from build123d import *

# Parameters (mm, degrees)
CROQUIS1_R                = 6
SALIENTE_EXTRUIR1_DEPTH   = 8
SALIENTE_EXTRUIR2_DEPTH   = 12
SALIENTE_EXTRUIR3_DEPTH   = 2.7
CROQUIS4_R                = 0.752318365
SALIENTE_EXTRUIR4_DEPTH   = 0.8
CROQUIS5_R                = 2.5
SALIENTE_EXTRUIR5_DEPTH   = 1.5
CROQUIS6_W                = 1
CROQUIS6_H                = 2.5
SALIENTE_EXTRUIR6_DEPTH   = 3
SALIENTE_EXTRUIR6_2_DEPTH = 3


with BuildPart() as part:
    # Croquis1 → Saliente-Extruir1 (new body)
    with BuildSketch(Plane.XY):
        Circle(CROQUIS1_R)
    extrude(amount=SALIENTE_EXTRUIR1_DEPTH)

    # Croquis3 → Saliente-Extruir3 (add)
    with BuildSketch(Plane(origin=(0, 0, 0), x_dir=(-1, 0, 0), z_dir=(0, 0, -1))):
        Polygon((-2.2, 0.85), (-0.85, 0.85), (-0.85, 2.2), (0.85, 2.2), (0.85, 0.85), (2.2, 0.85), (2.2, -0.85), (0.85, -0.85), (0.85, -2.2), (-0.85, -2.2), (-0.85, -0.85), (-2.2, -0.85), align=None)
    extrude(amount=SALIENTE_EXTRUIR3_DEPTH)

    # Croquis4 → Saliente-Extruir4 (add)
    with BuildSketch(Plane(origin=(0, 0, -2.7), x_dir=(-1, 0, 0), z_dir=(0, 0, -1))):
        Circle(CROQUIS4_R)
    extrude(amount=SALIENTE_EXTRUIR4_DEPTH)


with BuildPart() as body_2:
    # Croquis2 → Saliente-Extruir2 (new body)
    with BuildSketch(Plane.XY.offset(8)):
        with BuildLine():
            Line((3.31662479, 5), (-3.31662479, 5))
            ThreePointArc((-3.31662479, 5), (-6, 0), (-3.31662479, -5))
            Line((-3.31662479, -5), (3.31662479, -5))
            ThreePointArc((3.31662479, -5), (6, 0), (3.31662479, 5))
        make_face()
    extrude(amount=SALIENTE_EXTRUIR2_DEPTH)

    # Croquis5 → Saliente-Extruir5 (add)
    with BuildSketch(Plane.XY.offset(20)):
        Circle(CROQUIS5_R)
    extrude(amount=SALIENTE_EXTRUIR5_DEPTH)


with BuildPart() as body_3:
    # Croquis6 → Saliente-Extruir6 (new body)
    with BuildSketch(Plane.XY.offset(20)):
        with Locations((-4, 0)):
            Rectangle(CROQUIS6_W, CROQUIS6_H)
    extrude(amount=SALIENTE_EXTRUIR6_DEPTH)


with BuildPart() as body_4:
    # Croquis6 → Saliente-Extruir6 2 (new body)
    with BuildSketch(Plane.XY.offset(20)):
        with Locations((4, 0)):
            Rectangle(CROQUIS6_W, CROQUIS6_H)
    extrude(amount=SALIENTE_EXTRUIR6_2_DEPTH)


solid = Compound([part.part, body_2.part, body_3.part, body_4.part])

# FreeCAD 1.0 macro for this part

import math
import FreeCAD as App
import Part
import Sketcher
Q = App.Units.Quantity

doc = App.newDocument("Part")
body = doc.addObject("PartDesign::Body", "Body")

# Sketch on XY plane
sketch1 = doc.addObject("Sketcher::SketchObject", "Sketch")
body.addObject(sketch1)
sketch1.AttachmentSupport = (doc.XY_Plane, [""])
sketch1.MapMode = "FlatFace"
sketch1.addGeometry(Part.Circle(App.Vector(0, 0, 0), App.Vector(0, 0, 1), 6), False)
sketch1.addConstraint([
    Sketcher.Constraint("Coincident", 0, 3, -1, 1),
    Sketcher.Constraint("Diameter", 0, Q("12 mm")),
])
pad1 = doc.addObject("PartDesign::Pad", "Pad")
body.addObject(pad1)
pad1.Profile = sketch1
pad1.Length = 8

# Sketch on XY plane
sketch2 = doc.addObject("Sketcher::SketchObject", "Sketch001")
body.addObject(sketch2)
sketch2.AttachmentSupport = (doc.XY_Plane, [""])
sketch2.MapMode = "FlatFace"
sketch2.addGeometry([
    Part.LineSegment(App.Vector(0.8, 0.8, 0), App.Vector(2.2, 0.8, 0)),  # 0
    Part.LineSegment(App.Vector(2.2, 0.8, 0), App.Vector(2.2, -0.8, 0)),  # 1
    Part.LineSegment(App.Vector(2.2, -0.8, 0), App.Vector(0.8, -0.8, 0)),  # 2
    Part.LineSegment(App.Vector(0.8, -0.8, 0), App.Vector(0.8, -2.2, 0)),  # 3
    Part.LineSegment(App.Vector(0.8, -2.2, 0), App.Vector(-0.8, -2.2, 0)),  # 4
    Part.LineSegment(App.Vector(-0.8, -2.2, 0), App.Vector(-0.8, -0.8, 0)),  # 5
    Part.LineSegment(App.Vector(-0.8, -0.8, 0), App.Vector(-2.2, -0.8, 0)),  # 6
    Part.LineSegment(App.Vector(-2.2, -0.8, 0), App.Vector(-2.2, 0.8, 0)),  # 7
    Part.LineSegment(App.Vector(-2.2, 0.8, 0), App.Vector(-0.8, 0.8, 0)),  # 8
    Part.LineSegment(App.Vector(-0.8, 0.8, 0), App.Vector(-0.8, 2.2, 0)),  # 9
    Part.LineSegment(App.Vector(-0.8, 2.2, 0), App.Vector(0.8, 2.2, 0)),  # 10
    Part.LineSegment(App.Vector(0.8, 2.2, 0), App.Vector(0.8, 0.8, 0)),  # 11
], False)
sketch2.addConstraint([
    Sketcher.Constraint("Coincident", 0, 2, 1, 1),
    Sketcher.Constraint("Coincident", 1, 2, 2, 1),
    Sketcher.Constraint("Coincident", 2, 2, 3, 1),
    Sketcher.Constraint("Coincident", 3, 2, 4, 1),
    Sketcher.Constraint("Coincident", 4, 2, 5, 1),
    Sketcher.Constraint("Coincident", 5, 2, 6, 1),
    Sketcher.Constraint("Coincident", 6, 2, 7, 1),
    Sketcher.Constraint("Coincident", 7, 2, 8, 1),
    Sketcher.Constraint("Coincident", 8, 2, 9, 1),
    Sketcher.Constraint("Coincident", 9, 2, 10, 1),
    Sketcher.Constraint("Coincident", 10, 2, 11, 1),
    Sketcher.Constraint("Coincident", 11, 2, 0, 1),
    Sketcher.Constraint("Horizontal", 0),
    Sketcher.Constraint("Vertical", 1),
    Sketcher.Constraint("Horizontal", 2),
    Sketcher.Constraint("Vertical", 3),
    Sketcher.Constraint("Horizontal", 4),
    Sketcher.Constraint("Vertical", 5),
    Sketcher.Constraint("Horizontal", 6),
    Sketcher.Constraint("Vertical", 7),
    Sketcher.Constraint("Horizontal", 8),
    Sketcher.Constraint("Vertical", 9),
    Sketcher.Constraint("Horizontal", 10),
    Sketcher.Constraint("Vertical", 11),
    Sketcher.Constraint("Symmetric", 0, 2, 6, 2, -1, 1),
    Sketcher.Constraint("Symmetric", 2, 2, 8, 2, -1, 1),
    Sketcher.Constraint("Symmetric", 4, 2, 10, 2, -1, 1),
    Sketcher.Constraint("Symmetric", 2, 2, 5, 2, -2),
    Sketcher.Constraint("Equal", 10, 1),
    Sketcher.Constraint("Equal", 8, 3),
    Sketcher.Constraint("DistanceX", 4, 2, 4, 1, Q("1.7 mm")),
    Sketcher.Constraint("DistanceX", 0, 1, 0, 2, Q("1.35 mm")),
])
pad2 = doc.addObject("PartDesign::Pad", "Pad001")
body.addObject(pad2)
pad2.Profile = sketch2
pad2.Length = 2.7
pad2.Reversed = True

# Sketch on XY plane
sketch3 = doc.addObject("Sketcher::SketchObject", "Sketch002")
body.addObject(sketch3)
sketch3.AttachmentSupport = (doc.XY_Plane, [""])
sketch3.MapMode = "FlatFace"
sketch3.AttachmentOffset = App.Placement(App.Vector(0, 0, -2.7), App.Rotation())
sketch3.addGeometry(Part.Circle(App.Vector(0, 0, 0), App.Vector(0, 0, 1), 0.8), False)
sketch3.addConstraint([
    Sketcher.Constraint("Coincident", 0, 3, -1, 1),
    Sketcher.Constraint("Diameter", 0, Q("1.504637 mm")),
])
pad3 = doc.addObject("PartDesign::Pad", "Pad002")
body.addObject(pad3)
pad3.Profile = sketch3
pad3.Length = 0.8
pad3.Reversed = True
body2 = doc.addObject("PartDesign::Body", "Body001")

# Sketch on XY plane
sketch4 = doc.addObject("Sketcher::SketchObject", "Sketch003")
body2.addObject(sketch4)
sketch4.AttachmentSupport = (doc.getObject("XY_Plane001"), [""])
sketch4.MapMode = "FlatFace"
sketch4.AttachmentOffset = App.Placement(App.Vector(0, 0, 8), App.Rotation())
sketch4.addGeometry([
    Part.LineSegment(App.Vector(3, 5, 0), App.Vector(-3, 5, 0)),
    Part.ArcOfCircle(Part.Circle(App.Vector(0, 0, 0), App.Vector(0, 0, 1), 6), math.radians(124), math.radians(236)),
    Part.LineSegment(App.Vector(-3, -5, 0), App.Vector(3, -5, 0)),
    Part.ArcOfCircle(Part.Circle(App.Vector(0, 0, 0), App.Vector(0, 0, 1), 6), math.radians(-56), math.radians(56)),
], False)
sketch4.addConstraint([
    Sketcher.Constraint("Coincident", 0, 2, 1, 1),
    Sketcher.Constraint("Coincident", 1, 2, 2, 1),
    Sketcher.Constraint("Coincident", 2, 2, 3, 1),
    Sketcher.Constraint("Coincident", 3, 2, 0, 1),
    Sketcher.Constraint("Horizontal", 0),
    Sketcher.Constraint("Horizontal", 2),
    Sketcher.Constraint("Coincident", 1, 3, -1, 1),
    Sketcher.Constraint("Coincident", 3, 3, -1, 1),
    Sketcher.Constraint("Equal", 1, 3),
    Sketcher.Constraint("Vertical", 0, 2, 1, 2),
    Sketcher.Constraint("Radius", 1, Q("6 mm")),
    Sketcher.Constraint("DistanceY", -1, 1, 0, 2, Q("5 mm")),
])
pad4 = doc.addObject("PartDesign::Pad", "Pad003")
body2.addObject(pad4)
pad4.Profile = sketch4
pad4.Length = 12

# Sketch on XY plane
sketch5 = doc.addObject("Sketcher::SketchObject", "Sketch004")
body2.addObject(sketch5)
sketch5.AttachmentSupport = (doc.getObject("XY_Plane001"), [""])
sketch5.MapMode = "FlatFace"
sketch5.AttachmentOffset = App.Placement(App.Vector(0, 0, 20), App.Rotation())
sketch5.addGeometry(Part.Circle(App.Vector(0, 0, 0), App.Vector(0, 0, 1), 2.5), False)
sketch5.addConstraint([
    Sketcher.Constraint("Coincident", 0, 3, -1, 1),
    Sketcher.Constraint("Diameter", 0, Q("5 mm")),
])
pad5 = doc.addObject("PartDesign::Pad", "Pad004")
body2.addObject(pad5)
pad5.Profile = sketch5
pad5.Length = 1.5
body3 = doc.addObject("PartDesign::Body", "Body002")

# Sketch on XY plane
sketch6 = doc.addObject("Sketcher::SketchObject", "Sketch005")
body3.addObject(sketch6)
sketch6.AttachmentSupport = (doc.getObject("XY_Plane002"), [""])
sketch6.MapMode = "FlatFace"
sketch6.AttachmentOffset = App.Placement(App.Vector(0, 0, 20), App.Rotation())
sketch6.addGeometry([
    Part.LineSegment(App.Vector(-4.5, 1.2, 0), App.Vector(-4.5, -1.2, 0)),
    Part.LineSegment(App.Vector(-4.5, -1.2, 0), App.Vector(-3.5, -1.2, 0)),
    Part.LineSegment(App.Vector(-3.5, -1.2, 0), App.Vector(-3.5, 1.2, 0)),
    Part.LineSegment(App.Vector(-3.5, 1.2, 0), App.Vector(-4.5, 1.2, 0)),
], False)
sketch6.addConstraint([
    Sketcher.Constraint("Coincident", 0, 2, 1, 1),
    Sketcher.Constraint("Coincident", 1, 2, 2, 1),
    Sketcher.Constraint("Coincident", 2, 2, 3, 1),
    Sketcher.Constraint("Coincident", 3, 2, 0, 1),
    Sketcher.Constraint("Vertical", 0),
    Sketcher.Constraint("Horizontal", 1),
    Sketcher.Constraint("Vertical", 2),
    Sketcher.Constraint("Horizontal", 3),
    Sketcher.Constraint("DistanceX", 1, 1, 1, 2, Q("1 mm")),
    Sketcher.Constraint("DistanceY", 0, 2, 0, 1, Q("2.5 mm")),
    Sketcher.Constraint("DistanceX", 0, 2, -1, 1, Q("4.5 mm")),
    Sketcher.Constraint("DistanceY", 0, 2, -1, 1, Q("1.25 mm")),
])
pad6 = doc.addObject("PartDesign::Pad", "Pad005")
body3.addObject(pad6)
pad6.Profile = sketch6
pad6.Length = 3
body4 = doc.addObject("PartDesign::Body", "Body003")

# Sketch on XY plane
sketch7 = doc.addObject("Sketcher::SketchObject", "Sketch006")
body4.addObject(sketch7)
sketch7.AttachmentSupport = (doc.getObject("XY_Plane003"), [""])
sketch7.MapMode = "FlatFace"
sketch7.AttachmentOffset = App.Placement(App.Vector(0, 0, 20), App.Rotation())
sketch7.addGeometry([
    Part.LineSegment(App.Vector(3.5, 1.2, 0), App.Vector(3.5, -1.2, 0)),
    Part.LineSegment(App.Vector(3.5, -1.2, 0), App.Vector(4.5, -1.2, 0)),
    Part.LineSegment(App.Vector(4.5, -1.2, 0), App.Vector(4.5, 1.2, 0)),
    Part.LineSegment(App.Vector(4.5, 1.2, 0), App.Vector(3.5, 1.2, 0)),
], False)
sketch7.addConstraint([
    Sketcher.Constraint("Coincident", 0, 2, 1, 1),
    Sketcher.Constraint("Coincident", 1, 2, 2, 1),
    Sketcher.Constraint("Coincident", 2, 2, 3, 1),
    Sketcher.Constraint("Coincident", 3, 2, 0, 1),
    Sketcher.Constraint("Vertical", 0),
    Sketcher.Constraint("Horizontal", 1),
    Sketcher.Constraint("Vertical", 2),
    Sketcher.Constraint("Horizontal", 3),
    Sketcher.Constraint("DistanceX", 1, 1, 1, 2, Q("1 mm")),
    Sketcher.Constraint("DistanceY", 0, 2, 0, 1, Q("2.5 mm")),
    Sketcher.Constraint("DistanceX", -1, 1, 0, 2, Q("3.5 mm")),
    Sketcher.Constraint("DistanceY", 0, 2, -1, 1, Q("1.25 mm")),
])
pad7 = doc.addObject("PartDesign::Pad", "Pad006")
body4.addObject(pad7)
pad7.Profile = sketch7
pad7.Length = 3

doc.recompute()
